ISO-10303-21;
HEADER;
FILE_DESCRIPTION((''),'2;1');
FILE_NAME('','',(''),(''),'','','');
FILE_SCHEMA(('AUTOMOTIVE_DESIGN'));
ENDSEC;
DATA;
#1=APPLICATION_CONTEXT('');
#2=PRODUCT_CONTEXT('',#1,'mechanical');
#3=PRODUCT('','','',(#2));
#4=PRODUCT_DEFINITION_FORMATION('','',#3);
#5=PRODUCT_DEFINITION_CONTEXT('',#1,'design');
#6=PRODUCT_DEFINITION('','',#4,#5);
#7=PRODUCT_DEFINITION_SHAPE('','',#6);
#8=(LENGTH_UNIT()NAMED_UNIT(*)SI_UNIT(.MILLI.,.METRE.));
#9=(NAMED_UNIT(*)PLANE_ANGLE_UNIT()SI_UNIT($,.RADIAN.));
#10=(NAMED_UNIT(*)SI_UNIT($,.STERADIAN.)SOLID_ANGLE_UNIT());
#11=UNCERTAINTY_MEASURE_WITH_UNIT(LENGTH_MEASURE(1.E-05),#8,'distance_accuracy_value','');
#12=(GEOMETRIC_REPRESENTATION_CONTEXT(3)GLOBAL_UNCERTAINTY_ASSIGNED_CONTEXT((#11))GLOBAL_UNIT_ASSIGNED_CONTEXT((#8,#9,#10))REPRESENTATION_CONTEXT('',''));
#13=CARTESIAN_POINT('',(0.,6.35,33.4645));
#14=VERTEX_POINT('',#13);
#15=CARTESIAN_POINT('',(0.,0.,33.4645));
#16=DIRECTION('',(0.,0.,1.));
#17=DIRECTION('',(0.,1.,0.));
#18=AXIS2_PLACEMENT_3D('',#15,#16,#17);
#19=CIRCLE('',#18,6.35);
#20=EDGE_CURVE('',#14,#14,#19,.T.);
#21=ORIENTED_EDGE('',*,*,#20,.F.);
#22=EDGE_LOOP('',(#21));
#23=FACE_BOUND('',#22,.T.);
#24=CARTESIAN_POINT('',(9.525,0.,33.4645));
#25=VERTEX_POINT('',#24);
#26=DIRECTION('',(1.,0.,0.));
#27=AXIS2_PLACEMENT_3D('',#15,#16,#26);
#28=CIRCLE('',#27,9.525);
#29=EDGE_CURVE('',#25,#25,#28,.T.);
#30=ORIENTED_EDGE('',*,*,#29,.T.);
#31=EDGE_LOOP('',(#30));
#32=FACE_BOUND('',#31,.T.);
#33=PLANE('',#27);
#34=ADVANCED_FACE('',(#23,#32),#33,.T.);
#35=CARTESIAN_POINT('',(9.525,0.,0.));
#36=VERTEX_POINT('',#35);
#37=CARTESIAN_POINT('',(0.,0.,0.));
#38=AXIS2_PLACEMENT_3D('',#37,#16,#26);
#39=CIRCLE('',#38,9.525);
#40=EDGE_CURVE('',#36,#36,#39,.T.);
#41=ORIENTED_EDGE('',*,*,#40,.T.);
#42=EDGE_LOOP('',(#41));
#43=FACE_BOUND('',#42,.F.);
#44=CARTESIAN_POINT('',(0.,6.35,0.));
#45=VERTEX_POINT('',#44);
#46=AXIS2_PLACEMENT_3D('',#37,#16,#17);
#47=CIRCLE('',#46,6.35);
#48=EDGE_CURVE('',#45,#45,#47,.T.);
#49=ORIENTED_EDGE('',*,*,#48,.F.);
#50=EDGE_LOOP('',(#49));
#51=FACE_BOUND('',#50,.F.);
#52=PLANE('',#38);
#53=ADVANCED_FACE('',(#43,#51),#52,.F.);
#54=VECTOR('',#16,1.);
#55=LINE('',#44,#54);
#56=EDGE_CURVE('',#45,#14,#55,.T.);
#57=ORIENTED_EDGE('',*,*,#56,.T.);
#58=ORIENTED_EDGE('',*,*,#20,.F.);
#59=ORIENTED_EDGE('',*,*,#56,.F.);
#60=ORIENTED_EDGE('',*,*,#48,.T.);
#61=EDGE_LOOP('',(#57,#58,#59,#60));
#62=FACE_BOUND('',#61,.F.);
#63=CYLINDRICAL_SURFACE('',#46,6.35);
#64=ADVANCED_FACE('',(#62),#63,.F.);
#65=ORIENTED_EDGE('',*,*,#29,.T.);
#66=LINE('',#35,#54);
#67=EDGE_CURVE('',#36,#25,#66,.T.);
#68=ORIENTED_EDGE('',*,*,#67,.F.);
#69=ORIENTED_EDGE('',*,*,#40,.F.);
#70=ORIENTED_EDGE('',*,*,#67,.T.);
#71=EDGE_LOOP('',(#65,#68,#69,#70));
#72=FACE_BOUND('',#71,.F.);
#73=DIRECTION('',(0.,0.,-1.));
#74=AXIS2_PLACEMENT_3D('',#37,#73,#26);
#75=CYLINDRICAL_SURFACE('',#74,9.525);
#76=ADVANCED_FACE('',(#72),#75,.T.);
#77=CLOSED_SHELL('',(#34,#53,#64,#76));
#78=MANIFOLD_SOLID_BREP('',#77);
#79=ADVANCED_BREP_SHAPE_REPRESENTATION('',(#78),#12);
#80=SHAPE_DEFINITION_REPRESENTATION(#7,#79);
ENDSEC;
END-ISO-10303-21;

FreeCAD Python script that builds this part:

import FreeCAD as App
import Part
import Sketcher

V = App.Vector
Q = App.Units.Quantity

doc = App.newDocument("Part")
params = doc.addObject("Spreadsheet::Sheet", "Params")
for row, (alias, value) in enumerate([
    ("sketch1_diameter", "0.75 in"),
    ("pad1_length", "1.3175 in"),
    ("sketch2_diameter", "0.5 in"),
    ("hole_diameter", "0.5 in"),
], start=1):
    params.set(f"A{row}", alias)
    params.set(f"B{row}", "=" + value)
    params.setAlias(f"B{row}", alias)

body = doc.addObject("PartDesign::Body", "Body")

# Sketch on XY plane
sketch1 = doc.addObject("Sketcher::SketchObject", "Sketch")
body.addObject(sketch1)
sketch1.AttachmentSupport = (doc.XY_Plane, [""])
sketch1.MapMode = "FlatFace"
sketch1.addGeometry(Part.Circle(V(0, 0, 0), V(0, 0, 1), 10), False)
sketch1.addConstraint(Sketcher.Constraint("Coincident", 0, 3, -1, 1))
sketch1.addConstraint(Sketcher.Constraint("Diameter", 0, Q("0.75 in")))
sketch1.setExpression("Constraints[1]", "Params.sketch1_diameter")
pad1 = doc.addObject("PartDesign::Pad", "Pad")
body.addObject(pad1)
pad1.Profile = sketch1
pad1.setExpression("Length", "Params.pad1_length")

# Sketch on XY plane
sketch2 = doc.addObject("Sketcher::SketchObject", "Sketch001")
body.addObject(sketch2)
sketch2.AttachmentSupport = (doc.XY_Plane, [""])
sketch2.MapMode = "FlatFace"
sketch2.addGeometry(Part.Circle(V(0, 0, 0), V(0, 0, 1), 6), False)
sketch2.addConstraint(Sketcher.Constraint("Coincident", 0, 3, -1, 1))
sketch2.addConstraint(Sketcher.Constraint("Diameter", 0, Q("0.5 in")))
sketch2.setExpression("Constraints[1]", "Params.sketch2_diameter")
doc.recompute()
hole = doc.addObject("PartDesign::Hole", "Hole")
body.addObject(hole)
hole.Profile = sketch2
hole.ThreadType = "None"
hole.setExpression("Diameter", "Params.hole_diameter")
hole.DepthType = "ThroughAll"
hole.Reversed = True

doc.recompute()
